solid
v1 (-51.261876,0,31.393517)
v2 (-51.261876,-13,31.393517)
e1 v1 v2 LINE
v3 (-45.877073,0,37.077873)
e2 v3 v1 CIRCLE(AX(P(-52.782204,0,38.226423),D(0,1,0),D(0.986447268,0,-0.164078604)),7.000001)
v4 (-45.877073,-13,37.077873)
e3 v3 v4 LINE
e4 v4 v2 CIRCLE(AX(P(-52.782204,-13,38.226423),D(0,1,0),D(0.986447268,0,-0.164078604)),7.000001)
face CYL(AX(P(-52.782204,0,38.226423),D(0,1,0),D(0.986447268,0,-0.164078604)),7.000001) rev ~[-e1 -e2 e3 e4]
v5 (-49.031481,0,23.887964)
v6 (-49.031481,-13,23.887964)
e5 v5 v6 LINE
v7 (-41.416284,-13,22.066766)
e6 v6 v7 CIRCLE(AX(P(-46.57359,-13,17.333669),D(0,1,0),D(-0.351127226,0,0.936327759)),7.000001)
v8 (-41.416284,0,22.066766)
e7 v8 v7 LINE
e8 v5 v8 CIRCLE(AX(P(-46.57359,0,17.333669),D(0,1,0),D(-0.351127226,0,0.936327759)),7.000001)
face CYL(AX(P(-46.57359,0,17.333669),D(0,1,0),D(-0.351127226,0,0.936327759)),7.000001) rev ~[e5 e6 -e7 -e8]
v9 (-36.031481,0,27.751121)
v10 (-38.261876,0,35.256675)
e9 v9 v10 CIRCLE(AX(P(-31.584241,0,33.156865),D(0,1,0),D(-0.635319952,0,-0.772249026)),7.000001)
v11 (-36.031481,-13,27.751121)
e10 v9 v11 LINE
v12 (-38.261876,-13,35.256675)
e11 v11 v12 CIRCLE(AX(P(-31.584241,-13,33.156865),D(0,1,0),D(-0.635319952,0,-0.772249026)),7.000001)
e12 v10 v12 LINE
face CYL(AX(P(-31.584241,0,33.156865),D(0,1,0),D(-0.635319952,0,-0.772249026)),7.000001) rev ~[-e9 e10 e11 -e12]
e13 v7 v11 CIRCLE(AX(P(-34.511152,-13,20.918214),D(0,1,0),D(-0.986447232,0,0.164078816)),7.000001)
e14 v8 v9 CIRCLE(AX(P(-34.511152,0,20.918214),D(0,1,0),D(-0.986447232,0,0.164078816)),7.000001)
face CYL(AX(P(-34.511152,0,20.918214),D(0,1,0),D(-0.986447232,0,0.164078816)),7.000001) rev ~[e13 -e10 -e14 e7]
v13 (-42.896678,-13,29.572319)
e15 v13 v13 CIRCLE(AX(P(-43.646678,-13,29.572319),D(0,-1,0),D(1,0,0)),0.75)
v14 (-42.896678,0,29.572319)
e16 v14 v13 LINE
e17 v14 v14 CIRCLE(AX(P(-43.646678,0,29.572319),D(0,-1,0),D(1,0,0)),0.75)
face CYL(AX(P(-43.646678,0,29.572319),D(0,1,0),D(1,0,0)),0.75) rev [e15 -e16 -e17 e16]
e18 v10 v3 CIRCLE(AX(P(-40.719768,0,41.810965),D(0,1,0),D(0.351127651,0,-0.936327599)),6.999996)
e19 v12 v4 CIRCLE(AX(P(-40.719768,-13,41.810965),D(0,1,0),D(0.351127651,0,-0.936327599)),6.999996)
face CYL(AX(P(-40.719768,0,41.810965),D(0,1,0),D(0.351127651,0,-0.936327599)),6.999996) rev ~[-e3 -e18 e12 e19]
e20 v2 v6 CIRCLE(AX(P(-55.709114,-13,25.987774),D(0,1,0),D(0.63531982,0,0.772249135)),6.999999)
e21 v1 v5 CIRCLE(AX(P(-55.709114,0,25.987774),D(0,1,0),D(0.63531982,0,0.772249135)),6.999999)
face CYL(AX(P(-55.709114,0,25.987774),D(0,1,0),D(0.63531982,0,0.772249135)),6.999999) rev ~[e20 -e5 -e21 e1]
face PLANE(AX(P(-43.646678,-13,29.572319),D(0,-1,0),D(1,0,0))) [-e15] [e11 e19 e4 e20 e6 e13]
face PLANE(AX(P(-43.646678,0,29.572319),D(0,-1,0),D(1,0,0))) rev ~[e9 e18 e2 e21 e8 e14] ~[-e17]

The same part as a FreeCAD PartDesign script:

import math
import FreeCAD as App
import Part
import Sketcher
from FreeCAD import Vector

doc = App.newDocument("Part")
body = doc.addObject("PartDesign::Body", "Body")

# Sketch on XZ plane
sketch1 = body.newObject("Sketcher::SketchObject", "Sketch")
sketch1.AttachmentSupport = (doc.getObject("XZ_Plane"), [""])
sketch1.MapMode = "FlatFace"
sketch1.addGeometry([
    Part.ArcOfCircle(Part.Circle(Vector(-52.8, 38.2, 0), Vector(0, 0, 1), 7), math.radians(-77), math.radians(-9)),  # 0
    Part.ArcOfCircle(Part.Circle(Vector(-55.7, 26, 0), Vector(0, 0, 1), 7), math.radians(-17), math.radians(51)),  # 1
    Part.ArcOfCircle(Part.Circle(Vector(-46.6, 17.3, 0), Vector(0, 0, 1), 7), math.radians(43), math.radians(111)),  # 2
    Part.ArcOfCircle(Part.Circle(Vector(-34.5, 20.9, 0), Vector(0, 0, 1), 7), math.radians(103), math.radians(171)),  # 3
    Part.ArcOfCircle(Part.Circle(Vector(-31.6, 33.2, 0), Vector(0, 0, 1), 7), math.radians(163), math.radians(231)),  # 4
    Part.ArcOfCircle(Part.Circle(Vector(-40.7, 41.8, 0), Vector(0, 0, 1), 7), math.radians(-137), math.radians(-69)),  # 5
    Part.Circle(Vector(-43.6, 29.6, 0), Vector(0, 0, 1), 0.8),  # 6
], False)
sketch1.addConstraint([
    Sketcher.Constraint("Coincident", 0, 1, 1, 2),
    Sketcher.Constraint("Coincident", 1, 1, 2, 2),
    Sketcher.Constraint("Coincident", 2, 1, 3, 2),
    Sketcher.Constraint("Coincident", 3, 1, 4, 2),
    Sketcher.Constraint("Coincident", 4, 1, 5, 2),
    Sketcher.Constraint("Coincident", 5, 1, 0, 2),
    Sketcher.Constraint("Equal", 0, 1),
    Sketcher.Constraint("Equal", 0, 2),
    Sketcher.Constraint("Equal", 2, 3),
    Sketcher.Constraint("Equal", 3, 4),
    Sketcher.Constraint("Radius", 0, 7.000001),
    Sketcher.Constraint("Diameter", 6, 1.5),
    Sketcher.Constraint("DistanceX", 1, 1, 3, 1, 13.0),
    Sketcher.Constraint("Radius", 5, 6.999996),
    Sketcher.Constraint("DistanceY", 4, 3, 5, 3, 8.6541),
    Sketcher.Constraint("DistanceX", 0, 1, 6, 3, 7.615198),
    Sketcher.Constraint("DistanceY", 6, 3, 0, 1, 1.821198),
    Sketcher.Constraint("DistanceY", 3, 1, 6, 3, 1.821198),
    Sketcher.Constraint("DistanceX", 6, 3, 4, 1, 5.384802),
    Sketcher.Constraint("DistanceX", 2, 3, -1, 1, 46.57359),
    Sketcher.Constraint("DistanceY", -1, 1, 2, 3, 17.333669),
    Sketcher.Constraint("DistanceX", 4, 3, -1, 1, 31.584241),
    Sketcher.Constraint("DistanceX", 5, 3, -1, 1, 40.719768),
    Sketcher.Constraint("DistanceY", -1, 1, 6, 3, 29.572319),
    Sketcher.Constraint("DistanceX", 1, 1, -1, 1, 49.031481),
    Sketcher.Constraint("DistanceX", 1, 3, 0, 3, 2.92691),
    Sketcher.Constraint("DistanceX", 1, 3, 3, 3, 21.197962),
])
pad1 = body.newObject("PartDesign::Pad", "Pad")
pad1.Profile = sketch1
pad1.Length = 13

doc.recompute()
